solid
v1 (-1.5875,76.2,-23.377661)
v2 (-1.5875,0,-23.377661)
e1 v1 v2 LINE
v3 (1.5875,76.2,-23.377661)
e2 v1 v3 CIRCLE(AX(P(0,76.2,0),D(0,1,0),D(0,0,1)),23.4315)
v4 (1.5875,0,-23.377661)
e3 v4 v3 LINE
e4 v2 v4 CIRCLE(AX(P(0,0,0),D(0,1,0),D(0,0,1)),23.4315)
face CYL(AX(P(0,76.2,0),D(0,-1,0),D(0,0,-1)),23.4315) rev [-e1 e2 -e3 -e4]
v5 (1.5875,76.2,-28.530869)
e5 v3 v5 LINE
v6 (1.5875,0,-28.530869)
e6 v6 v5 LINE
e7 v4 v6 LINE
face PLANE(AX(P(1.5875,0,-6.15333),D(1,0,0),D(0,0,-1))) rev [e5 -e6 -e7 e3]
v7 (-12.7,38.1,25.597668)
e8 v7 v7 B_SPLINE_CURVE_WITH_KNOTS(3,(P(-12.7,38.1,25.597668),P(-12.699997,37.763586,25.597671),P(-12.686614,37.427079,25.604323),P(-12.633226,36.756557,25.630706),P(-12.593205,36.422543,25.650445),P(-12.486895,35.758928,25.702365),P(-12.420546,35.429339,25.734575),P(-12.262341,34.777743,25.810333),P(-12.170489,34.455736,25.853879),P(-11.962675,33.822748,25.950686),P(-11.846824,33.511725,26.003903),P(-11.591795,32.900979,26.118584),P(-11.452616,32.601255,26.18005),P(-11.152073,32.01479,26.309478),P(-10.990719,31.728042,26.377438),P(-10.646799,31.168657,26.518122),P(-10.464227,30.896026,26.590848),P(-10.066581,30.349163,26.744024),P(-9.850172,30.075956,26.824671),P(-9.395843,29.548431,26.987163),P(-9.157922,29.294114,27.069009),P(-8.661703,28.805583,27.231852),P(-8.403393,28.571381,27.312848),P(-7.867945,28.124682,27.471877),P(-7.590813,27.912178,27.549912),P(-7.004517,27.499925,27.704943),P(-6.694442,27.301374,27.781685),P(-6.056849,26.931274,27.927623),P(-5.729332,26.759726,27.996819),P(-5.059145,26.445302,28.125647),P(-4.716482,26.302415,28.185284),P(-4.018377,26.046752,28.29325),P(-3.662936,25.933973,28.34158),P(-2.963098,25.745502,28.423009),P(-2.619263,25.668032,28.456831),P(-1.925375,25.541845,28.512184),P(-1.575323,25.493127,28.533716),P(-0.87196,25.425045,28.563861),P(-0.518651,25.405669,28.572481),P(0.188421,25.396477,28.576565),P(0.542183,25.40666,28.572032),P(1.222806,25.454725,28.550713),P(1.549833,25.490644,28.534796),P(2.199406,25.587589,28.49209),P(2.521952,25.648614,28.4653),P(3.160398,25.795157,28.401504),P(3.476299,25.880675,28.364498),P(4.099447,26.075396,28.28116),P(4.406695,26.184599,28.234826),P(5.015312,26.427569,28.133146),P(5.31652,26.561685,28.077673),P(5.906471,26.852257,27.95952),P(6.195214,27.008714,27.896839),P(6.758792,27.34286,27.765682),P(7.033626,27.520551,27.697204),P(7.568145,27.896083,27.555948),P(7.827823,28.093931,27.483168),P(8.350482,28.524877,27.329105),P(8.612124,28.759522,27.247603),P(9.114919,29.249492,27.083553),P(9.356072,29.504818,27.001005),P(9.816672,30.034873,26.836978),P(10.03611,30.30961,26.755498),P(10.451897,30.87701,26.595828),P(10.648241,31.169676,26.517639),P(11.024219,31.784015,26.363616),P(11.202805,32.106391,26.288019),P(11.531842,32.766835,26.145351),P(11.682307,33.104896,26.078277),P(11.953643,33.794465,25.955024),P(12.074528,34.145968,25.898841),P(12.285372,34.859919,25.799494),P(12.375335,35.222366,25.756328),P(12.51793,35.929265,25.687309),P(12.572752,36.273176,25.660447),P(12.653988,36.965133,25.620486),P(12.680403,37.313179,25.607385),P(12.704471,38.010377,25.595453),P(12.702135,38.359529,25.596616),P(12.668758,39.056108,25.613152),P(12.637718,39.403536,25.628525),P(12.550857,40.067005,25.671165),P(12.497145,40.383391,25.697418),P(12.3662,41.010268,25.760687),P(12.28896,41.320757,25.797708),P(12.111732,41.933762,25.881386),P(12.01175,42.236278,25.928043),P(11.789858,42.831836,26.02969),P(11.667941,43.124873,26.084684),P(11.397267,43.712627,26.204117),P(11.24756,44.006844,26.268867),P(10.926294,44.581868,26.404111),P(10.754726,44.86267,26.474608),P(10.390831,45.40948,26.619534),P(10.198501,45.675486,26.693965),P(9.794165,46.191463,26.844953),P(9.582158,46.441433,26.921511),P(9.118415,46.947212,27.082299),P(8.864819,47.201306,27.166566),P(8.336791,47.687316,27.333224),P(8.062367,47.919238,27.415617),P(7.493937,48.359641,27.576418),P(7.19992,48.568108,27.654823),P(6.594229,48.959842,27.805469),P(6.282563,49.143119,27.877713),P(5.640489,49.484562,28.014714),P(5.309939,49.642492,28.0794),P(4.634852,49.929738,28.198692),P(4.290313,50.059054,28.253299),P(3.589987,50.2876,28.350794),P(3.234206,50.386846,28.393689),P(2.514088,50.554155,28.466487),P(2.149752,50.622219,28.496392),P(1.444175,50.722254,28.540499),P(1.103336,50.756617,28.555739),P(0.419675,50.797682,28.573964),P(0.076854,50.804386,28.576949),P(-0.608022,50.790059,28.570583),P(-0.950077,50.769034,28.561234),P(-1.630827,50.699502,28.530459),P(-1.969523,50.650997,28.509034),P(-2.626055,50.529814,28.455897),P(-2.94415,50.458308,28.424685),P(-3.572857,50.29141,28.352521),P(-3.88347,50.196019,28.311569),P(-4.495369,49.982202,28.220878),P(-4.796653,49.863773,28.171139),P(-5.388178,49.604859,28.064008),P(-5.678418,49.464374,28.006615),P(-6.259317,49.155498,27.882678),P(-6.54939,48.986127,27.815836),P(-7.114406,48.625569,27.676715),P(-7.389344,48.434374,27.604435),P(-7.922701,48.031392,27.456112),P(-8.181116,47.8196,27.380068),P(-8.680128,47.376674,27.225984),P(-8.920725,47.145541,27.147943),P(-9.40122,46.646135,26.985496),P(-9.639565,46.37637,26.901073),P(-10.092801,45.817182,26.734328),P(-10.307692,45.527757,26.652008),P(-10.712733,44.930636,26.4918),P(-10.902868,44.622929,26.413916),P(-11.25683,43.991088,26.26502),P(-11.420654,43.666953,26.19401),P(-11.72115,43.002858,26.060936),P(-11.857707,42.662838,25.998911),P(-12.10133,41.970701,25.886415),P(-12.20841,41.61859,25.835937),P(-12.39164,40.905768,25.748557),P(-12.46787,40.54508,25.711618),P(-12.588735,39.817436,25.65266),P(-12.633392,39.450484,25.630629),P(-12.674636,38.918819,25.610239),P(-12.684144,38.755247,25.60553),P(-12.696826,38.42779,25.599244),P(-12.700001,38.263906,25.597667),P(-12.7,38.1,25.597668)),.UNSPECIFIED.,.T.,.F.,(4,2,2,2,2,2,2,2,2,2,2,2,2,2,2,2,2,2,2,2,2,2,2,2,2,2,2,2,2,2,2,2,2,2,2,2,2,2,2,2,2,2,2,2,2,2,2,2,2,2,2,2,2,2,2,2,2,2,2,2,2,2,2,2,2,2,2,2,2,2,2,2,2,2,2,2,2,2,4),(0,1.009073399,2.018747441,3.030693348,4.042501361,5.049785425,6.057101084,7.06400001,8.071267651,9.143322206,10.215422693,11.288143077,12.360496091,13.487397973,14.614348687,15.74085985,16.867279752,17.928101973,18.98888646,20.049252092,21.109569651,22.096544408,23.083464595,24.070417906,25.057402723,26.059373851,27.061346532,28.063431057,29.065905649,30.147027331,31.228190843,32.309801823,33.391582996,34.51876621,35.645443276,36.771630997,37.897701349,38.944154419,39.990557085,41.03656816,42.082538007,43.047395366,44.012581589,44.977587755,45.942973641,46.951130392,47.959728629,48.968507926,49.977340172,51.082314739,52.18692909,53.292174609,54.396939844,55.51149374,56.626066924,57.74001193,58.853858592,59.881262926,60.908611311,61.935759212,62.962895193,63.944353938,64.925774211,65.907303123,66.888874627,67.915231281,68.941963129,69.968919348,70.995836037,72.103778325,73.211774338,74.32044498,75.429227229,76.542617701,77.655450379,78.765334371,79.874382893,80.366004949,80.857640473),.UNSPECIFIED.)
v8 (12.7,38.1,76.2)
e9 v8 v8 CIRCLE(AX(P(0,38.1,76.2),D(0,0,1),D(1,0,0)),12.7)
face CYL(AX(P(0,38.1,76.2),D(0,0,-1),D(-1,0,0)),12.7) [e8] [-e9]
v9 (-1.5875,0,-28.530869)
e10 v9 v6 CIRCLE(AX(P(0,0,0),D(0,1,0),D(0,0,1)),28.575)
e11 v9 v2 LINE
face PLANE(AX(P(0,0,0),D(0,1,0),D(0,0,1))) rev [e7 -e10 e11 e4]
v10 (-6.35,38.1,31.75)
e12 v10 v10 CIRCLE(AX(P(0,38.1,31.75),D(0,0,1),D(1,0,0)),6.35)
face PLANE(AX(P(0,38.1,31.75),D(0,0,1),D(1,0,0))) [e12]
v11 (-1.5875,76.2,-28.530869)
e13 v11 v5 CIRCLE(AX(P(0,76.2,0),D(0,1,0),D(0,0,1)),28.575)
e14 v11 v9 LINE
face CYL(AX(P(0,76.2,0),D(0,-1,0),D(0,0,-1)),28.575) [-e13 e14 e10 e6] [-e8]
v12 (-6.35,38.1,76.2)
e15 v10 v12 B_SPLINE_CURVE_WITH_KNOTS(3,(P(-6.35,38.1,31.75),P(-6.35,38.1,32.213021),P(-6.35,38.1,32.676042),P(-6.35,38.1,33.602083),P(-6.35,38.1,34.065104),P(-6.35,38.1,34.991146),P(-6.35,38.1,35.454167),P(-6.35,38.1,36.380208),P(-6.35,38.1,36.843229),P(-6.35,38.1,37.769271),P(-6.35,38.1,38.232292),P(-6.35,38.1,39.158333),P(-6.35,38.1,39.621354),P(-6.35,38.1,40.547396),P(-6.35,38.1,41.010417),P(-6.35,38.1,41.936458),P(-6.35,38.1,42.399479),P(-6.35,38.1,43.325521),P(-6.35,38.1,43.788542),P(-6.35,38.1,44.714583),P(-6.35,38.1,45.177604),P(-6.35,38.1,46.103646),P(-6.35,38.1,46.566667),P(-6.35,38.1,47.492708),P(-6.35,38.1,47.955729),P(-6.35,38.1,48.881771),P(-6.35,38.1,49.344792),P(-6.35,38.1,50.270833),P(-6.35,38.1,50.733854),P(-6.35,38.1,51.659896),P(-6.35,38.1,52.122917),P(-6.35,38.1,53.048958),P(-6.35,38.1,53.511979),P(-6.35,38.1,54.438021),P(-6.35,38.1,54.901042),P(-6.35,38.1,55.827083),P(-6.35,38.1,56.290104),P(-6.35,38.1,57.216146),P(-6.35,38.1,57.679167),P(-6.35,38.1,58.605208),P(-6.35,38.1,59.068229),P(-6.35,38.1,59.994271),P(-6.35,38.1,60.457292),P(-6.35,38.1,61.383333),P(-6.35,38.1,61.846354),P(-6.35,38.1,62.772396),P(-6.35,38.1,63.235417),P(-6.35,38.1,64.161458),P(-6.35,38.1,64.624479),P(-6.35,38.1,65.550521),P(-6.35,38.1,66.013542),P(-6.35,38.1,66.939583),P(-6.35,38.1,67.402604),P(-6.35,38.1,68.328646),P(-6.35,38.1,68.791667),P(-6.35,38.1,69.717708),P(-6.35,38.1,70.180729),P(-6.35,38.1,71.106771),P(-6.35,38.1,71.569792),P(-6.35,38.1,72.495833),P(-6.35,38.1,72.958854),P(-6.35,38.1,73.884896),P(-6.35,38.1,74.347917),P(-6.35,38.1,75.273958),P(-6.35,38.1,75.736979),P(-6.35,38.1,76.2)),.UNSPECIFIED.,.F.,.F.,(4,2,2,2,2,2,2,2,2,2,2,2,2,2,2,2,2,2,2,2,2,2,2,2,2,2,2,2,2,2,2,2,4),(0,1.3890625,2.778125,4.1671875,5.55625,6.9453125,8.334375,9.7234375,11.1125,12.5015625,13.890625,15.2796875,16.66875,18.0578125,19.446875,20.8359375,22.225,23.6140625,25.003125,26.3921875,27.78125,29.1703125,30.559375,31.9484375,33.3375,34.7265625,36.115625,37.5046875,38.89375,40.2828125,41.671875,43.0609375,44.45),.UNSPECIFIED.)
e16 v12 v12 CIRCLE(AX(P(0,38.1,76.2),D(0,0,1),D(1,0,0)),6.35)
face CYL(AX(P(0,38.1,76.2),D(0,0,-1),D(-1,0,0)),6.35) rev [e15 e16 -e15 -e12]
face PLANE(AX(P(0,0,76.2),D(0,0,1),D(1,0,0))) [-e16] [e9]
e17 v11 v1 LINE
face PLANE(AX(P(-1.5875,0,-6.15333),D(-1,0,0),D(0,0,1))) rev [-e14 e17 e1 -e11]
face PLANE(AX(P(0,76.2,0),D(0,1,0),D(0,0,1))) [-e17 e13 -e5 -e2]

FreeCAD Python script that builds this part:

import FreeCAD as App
import Part
import Sketcher
Q = App.Units.Quantity

doc = App.newDocument("Part")
body = doc.addObject("PartDesign::Body", "Body")

# Sketch on XZ plane
sketch1 = body.newObject("Sketcher::SketchObject", "Sketch")
sketch1.AttachmentSupport = (doc.getObject("XZ_Plane"), [""])
sketch1.MapMode = "FlatFace"
sketch1.addGeometry([
    Part.Circle(App.Vector(0, 0, 0), App.Vector(0, 0, 1), 29),
    Part.Circle(App.Vector(0, 0, 0), App.Vector(0, 0, 1), 23),
], False)
sketch1.addConstraint([
    Sketcher.Constraint("Coincident", 0, 3, -1, 1),
    Sketcher.Constraint("Coincident", 1, 3, -1, 1),
    Sketcher.Constraint("Diameter", 0, Q("2.25 in")),
    Sketcher.Constraint("Diameter", 1, Q("1.845 in")),
])
pad1 = body.newObject("PartDesign::Pad", "Pad")
pad1.Profile = sketch1
pad1.Length = Q("3 in")
pad1.Reversed = True

# Sketch on XY plane
sketch2 = body.newObject("Sketcher::SketchObject", "Sketch001")
sketch2.AttachmentSupport = (doc.getObject("XY_Plane"), [""])
sketch2.MapMode = "FlatFace"
sketch2.addGeometry([
    Part.Circle(App.Vector(0, 38, 0), App.Vector(0, 0, 1), 13),
    Part.Circle(App.Vector(0, 38, 0), App.Vector(0, 0, 1), 6),
], False)
sketch2.addConstraint([
    Sketcher.Constraint("Coincident", 1, 3, 0, 3),
    Sketcher.Constraint("PointOnObject", 0, 3, -2),
    Sketcher.Constraint("Diameter", 0, Q("1 in")),
    Sketcher.Constraint("Diameter", 1, Q("0.5 in")),
    Sketcher.Constraint("DistanceY", -1, 1, 0, 3, Q("1.5 in")),
])
pad2 = body.newObject("PartDesign::Pad", "Pad001")
pad2.Profile = sketch2
pad2.Length = Q("3 in")

# Sketch on XY plane
sketch3 = body.newObject("Sketcher::SketchObject", "Sketch002")
sketch3.AttachmentSupport = (doc.getObject("XY_Plane"), [""])
sketch3.MapMode = "FlatFace"
sketch3.addGeometry(Part.Circle(App.Vector(0, 38, 0), App.Vector(0, 0, 1), 13), False)
sketch3.addConstraint([
    Sketcher.Constraint("PointOnObject", 0, 3, -2),
    Sketcher.Constraint("Diameter", 0, Q("1 in")),
    Sketcher.Constraint("DistanceY", -1, 1, 0, 3, Q("1.5 in")),
])
pad3 = body.newObject("PartDesign::Pad", "Pad002")
pad3.Profile = sketch3
pad3.Length = Q("1.25 in")

# Sketch on XZ plane
sketch4 = body.newObject("Sketcher::SketchObject", "Sketch003")
sketch4.AttachmentSupport = (doc.getObject("XZ_Plane"), [""])
sketch4.MapMode = "FlatFace"
sketch4.AttachmentOffset = App.Placement(App.Vector(0, 0, -3 * 25.4), App.Rotation())
sketch4.addGeometry(Part.Circle(App.Vector(0, 0, 0), App.Vector(0, 0, 1), 23), False)
sketch4.addConstraint([
    Sketcher.Constraint("Coincident", 0, 3, -1, 1),
    Sketcher.Constraint("Diameter", 0, Q("1.845 in")),
])
pocket1 = body.newObject("PartDesign::Pocket", "Pocket")
pocket1.Profile = sketch4
pocket1.Type = "ThroughAll"
pocket1.Reversed = True

# Sketch on XZ plane
sketch5 = body.newObject("Sketcher::SketchObject", "Sketch004")
sketch5.AttachmentSupport = (doc.getObject("XZ_Plane"), [""])
sketch5.MapMode = "FlatFace"
sketch5.AttachmentOffset = App.Placement(App.Vector(0, 0, -3 * 25.4), App.Rotation())
sketch5.addGeometry([
    Part.LineSegment(App.Vector(-1.6, -40.7, 0), App.Vector(-1.6, -6.2, 0)),
    Part.LineSegment(App.Vector(-1.6, -6.2, 0), App.Vector(1.6, -6.2, 0)),
    Part.LineSegment(App.Vector(1.6, -6.2, 0), App.Vector(1.6, -40.7, 0)),
    Part.LineSegment(App.Vector(1.6, -40.7, 0), App.Vector(-1.6, -40.7, 0)),
], False)
sketch5.addConstraint([
    Sketcher.Constraint("Coincident", 0, 2, 1, 1),
    Sketcher.Constraint("Coincident", 1, 2, 2, 1),
    Sketcher.Constraint("Coincident", 2, 2, 3, 1),
    Sketcher.Constraint("Coincident", 3, 2, 0, 1),
    Sketcher.Constraint("Vertical", 0),
    Sketcher.Constraint("Horizontal", 1),
    Sketcher.Constraint("Vertical", 2),
    Sketcher.Constraint("Horizontal", 3),
    Sketcher.Constraint("DistanceX", 1, 1, 1, 2, Q("0.125 in")),
    Sketcher.Constraint("DistanceX", 0, 2, -1, 1, Q("0.0625 in")),
    Sketcher.Constraint("DistanceY", 0, 1, 0, 2, 34.55634),
    Sketcher.Constraint("DistanceY", 0, 2, -1, 1, 6.15333),
])
pocket2 = body.newObject("PartDesign::Pocket", "Pocket001")
pocket2.Profile = sketch5
pocket2.Type = "ThroughAll"
pocket2.Reversed = True

doc.recompute()
